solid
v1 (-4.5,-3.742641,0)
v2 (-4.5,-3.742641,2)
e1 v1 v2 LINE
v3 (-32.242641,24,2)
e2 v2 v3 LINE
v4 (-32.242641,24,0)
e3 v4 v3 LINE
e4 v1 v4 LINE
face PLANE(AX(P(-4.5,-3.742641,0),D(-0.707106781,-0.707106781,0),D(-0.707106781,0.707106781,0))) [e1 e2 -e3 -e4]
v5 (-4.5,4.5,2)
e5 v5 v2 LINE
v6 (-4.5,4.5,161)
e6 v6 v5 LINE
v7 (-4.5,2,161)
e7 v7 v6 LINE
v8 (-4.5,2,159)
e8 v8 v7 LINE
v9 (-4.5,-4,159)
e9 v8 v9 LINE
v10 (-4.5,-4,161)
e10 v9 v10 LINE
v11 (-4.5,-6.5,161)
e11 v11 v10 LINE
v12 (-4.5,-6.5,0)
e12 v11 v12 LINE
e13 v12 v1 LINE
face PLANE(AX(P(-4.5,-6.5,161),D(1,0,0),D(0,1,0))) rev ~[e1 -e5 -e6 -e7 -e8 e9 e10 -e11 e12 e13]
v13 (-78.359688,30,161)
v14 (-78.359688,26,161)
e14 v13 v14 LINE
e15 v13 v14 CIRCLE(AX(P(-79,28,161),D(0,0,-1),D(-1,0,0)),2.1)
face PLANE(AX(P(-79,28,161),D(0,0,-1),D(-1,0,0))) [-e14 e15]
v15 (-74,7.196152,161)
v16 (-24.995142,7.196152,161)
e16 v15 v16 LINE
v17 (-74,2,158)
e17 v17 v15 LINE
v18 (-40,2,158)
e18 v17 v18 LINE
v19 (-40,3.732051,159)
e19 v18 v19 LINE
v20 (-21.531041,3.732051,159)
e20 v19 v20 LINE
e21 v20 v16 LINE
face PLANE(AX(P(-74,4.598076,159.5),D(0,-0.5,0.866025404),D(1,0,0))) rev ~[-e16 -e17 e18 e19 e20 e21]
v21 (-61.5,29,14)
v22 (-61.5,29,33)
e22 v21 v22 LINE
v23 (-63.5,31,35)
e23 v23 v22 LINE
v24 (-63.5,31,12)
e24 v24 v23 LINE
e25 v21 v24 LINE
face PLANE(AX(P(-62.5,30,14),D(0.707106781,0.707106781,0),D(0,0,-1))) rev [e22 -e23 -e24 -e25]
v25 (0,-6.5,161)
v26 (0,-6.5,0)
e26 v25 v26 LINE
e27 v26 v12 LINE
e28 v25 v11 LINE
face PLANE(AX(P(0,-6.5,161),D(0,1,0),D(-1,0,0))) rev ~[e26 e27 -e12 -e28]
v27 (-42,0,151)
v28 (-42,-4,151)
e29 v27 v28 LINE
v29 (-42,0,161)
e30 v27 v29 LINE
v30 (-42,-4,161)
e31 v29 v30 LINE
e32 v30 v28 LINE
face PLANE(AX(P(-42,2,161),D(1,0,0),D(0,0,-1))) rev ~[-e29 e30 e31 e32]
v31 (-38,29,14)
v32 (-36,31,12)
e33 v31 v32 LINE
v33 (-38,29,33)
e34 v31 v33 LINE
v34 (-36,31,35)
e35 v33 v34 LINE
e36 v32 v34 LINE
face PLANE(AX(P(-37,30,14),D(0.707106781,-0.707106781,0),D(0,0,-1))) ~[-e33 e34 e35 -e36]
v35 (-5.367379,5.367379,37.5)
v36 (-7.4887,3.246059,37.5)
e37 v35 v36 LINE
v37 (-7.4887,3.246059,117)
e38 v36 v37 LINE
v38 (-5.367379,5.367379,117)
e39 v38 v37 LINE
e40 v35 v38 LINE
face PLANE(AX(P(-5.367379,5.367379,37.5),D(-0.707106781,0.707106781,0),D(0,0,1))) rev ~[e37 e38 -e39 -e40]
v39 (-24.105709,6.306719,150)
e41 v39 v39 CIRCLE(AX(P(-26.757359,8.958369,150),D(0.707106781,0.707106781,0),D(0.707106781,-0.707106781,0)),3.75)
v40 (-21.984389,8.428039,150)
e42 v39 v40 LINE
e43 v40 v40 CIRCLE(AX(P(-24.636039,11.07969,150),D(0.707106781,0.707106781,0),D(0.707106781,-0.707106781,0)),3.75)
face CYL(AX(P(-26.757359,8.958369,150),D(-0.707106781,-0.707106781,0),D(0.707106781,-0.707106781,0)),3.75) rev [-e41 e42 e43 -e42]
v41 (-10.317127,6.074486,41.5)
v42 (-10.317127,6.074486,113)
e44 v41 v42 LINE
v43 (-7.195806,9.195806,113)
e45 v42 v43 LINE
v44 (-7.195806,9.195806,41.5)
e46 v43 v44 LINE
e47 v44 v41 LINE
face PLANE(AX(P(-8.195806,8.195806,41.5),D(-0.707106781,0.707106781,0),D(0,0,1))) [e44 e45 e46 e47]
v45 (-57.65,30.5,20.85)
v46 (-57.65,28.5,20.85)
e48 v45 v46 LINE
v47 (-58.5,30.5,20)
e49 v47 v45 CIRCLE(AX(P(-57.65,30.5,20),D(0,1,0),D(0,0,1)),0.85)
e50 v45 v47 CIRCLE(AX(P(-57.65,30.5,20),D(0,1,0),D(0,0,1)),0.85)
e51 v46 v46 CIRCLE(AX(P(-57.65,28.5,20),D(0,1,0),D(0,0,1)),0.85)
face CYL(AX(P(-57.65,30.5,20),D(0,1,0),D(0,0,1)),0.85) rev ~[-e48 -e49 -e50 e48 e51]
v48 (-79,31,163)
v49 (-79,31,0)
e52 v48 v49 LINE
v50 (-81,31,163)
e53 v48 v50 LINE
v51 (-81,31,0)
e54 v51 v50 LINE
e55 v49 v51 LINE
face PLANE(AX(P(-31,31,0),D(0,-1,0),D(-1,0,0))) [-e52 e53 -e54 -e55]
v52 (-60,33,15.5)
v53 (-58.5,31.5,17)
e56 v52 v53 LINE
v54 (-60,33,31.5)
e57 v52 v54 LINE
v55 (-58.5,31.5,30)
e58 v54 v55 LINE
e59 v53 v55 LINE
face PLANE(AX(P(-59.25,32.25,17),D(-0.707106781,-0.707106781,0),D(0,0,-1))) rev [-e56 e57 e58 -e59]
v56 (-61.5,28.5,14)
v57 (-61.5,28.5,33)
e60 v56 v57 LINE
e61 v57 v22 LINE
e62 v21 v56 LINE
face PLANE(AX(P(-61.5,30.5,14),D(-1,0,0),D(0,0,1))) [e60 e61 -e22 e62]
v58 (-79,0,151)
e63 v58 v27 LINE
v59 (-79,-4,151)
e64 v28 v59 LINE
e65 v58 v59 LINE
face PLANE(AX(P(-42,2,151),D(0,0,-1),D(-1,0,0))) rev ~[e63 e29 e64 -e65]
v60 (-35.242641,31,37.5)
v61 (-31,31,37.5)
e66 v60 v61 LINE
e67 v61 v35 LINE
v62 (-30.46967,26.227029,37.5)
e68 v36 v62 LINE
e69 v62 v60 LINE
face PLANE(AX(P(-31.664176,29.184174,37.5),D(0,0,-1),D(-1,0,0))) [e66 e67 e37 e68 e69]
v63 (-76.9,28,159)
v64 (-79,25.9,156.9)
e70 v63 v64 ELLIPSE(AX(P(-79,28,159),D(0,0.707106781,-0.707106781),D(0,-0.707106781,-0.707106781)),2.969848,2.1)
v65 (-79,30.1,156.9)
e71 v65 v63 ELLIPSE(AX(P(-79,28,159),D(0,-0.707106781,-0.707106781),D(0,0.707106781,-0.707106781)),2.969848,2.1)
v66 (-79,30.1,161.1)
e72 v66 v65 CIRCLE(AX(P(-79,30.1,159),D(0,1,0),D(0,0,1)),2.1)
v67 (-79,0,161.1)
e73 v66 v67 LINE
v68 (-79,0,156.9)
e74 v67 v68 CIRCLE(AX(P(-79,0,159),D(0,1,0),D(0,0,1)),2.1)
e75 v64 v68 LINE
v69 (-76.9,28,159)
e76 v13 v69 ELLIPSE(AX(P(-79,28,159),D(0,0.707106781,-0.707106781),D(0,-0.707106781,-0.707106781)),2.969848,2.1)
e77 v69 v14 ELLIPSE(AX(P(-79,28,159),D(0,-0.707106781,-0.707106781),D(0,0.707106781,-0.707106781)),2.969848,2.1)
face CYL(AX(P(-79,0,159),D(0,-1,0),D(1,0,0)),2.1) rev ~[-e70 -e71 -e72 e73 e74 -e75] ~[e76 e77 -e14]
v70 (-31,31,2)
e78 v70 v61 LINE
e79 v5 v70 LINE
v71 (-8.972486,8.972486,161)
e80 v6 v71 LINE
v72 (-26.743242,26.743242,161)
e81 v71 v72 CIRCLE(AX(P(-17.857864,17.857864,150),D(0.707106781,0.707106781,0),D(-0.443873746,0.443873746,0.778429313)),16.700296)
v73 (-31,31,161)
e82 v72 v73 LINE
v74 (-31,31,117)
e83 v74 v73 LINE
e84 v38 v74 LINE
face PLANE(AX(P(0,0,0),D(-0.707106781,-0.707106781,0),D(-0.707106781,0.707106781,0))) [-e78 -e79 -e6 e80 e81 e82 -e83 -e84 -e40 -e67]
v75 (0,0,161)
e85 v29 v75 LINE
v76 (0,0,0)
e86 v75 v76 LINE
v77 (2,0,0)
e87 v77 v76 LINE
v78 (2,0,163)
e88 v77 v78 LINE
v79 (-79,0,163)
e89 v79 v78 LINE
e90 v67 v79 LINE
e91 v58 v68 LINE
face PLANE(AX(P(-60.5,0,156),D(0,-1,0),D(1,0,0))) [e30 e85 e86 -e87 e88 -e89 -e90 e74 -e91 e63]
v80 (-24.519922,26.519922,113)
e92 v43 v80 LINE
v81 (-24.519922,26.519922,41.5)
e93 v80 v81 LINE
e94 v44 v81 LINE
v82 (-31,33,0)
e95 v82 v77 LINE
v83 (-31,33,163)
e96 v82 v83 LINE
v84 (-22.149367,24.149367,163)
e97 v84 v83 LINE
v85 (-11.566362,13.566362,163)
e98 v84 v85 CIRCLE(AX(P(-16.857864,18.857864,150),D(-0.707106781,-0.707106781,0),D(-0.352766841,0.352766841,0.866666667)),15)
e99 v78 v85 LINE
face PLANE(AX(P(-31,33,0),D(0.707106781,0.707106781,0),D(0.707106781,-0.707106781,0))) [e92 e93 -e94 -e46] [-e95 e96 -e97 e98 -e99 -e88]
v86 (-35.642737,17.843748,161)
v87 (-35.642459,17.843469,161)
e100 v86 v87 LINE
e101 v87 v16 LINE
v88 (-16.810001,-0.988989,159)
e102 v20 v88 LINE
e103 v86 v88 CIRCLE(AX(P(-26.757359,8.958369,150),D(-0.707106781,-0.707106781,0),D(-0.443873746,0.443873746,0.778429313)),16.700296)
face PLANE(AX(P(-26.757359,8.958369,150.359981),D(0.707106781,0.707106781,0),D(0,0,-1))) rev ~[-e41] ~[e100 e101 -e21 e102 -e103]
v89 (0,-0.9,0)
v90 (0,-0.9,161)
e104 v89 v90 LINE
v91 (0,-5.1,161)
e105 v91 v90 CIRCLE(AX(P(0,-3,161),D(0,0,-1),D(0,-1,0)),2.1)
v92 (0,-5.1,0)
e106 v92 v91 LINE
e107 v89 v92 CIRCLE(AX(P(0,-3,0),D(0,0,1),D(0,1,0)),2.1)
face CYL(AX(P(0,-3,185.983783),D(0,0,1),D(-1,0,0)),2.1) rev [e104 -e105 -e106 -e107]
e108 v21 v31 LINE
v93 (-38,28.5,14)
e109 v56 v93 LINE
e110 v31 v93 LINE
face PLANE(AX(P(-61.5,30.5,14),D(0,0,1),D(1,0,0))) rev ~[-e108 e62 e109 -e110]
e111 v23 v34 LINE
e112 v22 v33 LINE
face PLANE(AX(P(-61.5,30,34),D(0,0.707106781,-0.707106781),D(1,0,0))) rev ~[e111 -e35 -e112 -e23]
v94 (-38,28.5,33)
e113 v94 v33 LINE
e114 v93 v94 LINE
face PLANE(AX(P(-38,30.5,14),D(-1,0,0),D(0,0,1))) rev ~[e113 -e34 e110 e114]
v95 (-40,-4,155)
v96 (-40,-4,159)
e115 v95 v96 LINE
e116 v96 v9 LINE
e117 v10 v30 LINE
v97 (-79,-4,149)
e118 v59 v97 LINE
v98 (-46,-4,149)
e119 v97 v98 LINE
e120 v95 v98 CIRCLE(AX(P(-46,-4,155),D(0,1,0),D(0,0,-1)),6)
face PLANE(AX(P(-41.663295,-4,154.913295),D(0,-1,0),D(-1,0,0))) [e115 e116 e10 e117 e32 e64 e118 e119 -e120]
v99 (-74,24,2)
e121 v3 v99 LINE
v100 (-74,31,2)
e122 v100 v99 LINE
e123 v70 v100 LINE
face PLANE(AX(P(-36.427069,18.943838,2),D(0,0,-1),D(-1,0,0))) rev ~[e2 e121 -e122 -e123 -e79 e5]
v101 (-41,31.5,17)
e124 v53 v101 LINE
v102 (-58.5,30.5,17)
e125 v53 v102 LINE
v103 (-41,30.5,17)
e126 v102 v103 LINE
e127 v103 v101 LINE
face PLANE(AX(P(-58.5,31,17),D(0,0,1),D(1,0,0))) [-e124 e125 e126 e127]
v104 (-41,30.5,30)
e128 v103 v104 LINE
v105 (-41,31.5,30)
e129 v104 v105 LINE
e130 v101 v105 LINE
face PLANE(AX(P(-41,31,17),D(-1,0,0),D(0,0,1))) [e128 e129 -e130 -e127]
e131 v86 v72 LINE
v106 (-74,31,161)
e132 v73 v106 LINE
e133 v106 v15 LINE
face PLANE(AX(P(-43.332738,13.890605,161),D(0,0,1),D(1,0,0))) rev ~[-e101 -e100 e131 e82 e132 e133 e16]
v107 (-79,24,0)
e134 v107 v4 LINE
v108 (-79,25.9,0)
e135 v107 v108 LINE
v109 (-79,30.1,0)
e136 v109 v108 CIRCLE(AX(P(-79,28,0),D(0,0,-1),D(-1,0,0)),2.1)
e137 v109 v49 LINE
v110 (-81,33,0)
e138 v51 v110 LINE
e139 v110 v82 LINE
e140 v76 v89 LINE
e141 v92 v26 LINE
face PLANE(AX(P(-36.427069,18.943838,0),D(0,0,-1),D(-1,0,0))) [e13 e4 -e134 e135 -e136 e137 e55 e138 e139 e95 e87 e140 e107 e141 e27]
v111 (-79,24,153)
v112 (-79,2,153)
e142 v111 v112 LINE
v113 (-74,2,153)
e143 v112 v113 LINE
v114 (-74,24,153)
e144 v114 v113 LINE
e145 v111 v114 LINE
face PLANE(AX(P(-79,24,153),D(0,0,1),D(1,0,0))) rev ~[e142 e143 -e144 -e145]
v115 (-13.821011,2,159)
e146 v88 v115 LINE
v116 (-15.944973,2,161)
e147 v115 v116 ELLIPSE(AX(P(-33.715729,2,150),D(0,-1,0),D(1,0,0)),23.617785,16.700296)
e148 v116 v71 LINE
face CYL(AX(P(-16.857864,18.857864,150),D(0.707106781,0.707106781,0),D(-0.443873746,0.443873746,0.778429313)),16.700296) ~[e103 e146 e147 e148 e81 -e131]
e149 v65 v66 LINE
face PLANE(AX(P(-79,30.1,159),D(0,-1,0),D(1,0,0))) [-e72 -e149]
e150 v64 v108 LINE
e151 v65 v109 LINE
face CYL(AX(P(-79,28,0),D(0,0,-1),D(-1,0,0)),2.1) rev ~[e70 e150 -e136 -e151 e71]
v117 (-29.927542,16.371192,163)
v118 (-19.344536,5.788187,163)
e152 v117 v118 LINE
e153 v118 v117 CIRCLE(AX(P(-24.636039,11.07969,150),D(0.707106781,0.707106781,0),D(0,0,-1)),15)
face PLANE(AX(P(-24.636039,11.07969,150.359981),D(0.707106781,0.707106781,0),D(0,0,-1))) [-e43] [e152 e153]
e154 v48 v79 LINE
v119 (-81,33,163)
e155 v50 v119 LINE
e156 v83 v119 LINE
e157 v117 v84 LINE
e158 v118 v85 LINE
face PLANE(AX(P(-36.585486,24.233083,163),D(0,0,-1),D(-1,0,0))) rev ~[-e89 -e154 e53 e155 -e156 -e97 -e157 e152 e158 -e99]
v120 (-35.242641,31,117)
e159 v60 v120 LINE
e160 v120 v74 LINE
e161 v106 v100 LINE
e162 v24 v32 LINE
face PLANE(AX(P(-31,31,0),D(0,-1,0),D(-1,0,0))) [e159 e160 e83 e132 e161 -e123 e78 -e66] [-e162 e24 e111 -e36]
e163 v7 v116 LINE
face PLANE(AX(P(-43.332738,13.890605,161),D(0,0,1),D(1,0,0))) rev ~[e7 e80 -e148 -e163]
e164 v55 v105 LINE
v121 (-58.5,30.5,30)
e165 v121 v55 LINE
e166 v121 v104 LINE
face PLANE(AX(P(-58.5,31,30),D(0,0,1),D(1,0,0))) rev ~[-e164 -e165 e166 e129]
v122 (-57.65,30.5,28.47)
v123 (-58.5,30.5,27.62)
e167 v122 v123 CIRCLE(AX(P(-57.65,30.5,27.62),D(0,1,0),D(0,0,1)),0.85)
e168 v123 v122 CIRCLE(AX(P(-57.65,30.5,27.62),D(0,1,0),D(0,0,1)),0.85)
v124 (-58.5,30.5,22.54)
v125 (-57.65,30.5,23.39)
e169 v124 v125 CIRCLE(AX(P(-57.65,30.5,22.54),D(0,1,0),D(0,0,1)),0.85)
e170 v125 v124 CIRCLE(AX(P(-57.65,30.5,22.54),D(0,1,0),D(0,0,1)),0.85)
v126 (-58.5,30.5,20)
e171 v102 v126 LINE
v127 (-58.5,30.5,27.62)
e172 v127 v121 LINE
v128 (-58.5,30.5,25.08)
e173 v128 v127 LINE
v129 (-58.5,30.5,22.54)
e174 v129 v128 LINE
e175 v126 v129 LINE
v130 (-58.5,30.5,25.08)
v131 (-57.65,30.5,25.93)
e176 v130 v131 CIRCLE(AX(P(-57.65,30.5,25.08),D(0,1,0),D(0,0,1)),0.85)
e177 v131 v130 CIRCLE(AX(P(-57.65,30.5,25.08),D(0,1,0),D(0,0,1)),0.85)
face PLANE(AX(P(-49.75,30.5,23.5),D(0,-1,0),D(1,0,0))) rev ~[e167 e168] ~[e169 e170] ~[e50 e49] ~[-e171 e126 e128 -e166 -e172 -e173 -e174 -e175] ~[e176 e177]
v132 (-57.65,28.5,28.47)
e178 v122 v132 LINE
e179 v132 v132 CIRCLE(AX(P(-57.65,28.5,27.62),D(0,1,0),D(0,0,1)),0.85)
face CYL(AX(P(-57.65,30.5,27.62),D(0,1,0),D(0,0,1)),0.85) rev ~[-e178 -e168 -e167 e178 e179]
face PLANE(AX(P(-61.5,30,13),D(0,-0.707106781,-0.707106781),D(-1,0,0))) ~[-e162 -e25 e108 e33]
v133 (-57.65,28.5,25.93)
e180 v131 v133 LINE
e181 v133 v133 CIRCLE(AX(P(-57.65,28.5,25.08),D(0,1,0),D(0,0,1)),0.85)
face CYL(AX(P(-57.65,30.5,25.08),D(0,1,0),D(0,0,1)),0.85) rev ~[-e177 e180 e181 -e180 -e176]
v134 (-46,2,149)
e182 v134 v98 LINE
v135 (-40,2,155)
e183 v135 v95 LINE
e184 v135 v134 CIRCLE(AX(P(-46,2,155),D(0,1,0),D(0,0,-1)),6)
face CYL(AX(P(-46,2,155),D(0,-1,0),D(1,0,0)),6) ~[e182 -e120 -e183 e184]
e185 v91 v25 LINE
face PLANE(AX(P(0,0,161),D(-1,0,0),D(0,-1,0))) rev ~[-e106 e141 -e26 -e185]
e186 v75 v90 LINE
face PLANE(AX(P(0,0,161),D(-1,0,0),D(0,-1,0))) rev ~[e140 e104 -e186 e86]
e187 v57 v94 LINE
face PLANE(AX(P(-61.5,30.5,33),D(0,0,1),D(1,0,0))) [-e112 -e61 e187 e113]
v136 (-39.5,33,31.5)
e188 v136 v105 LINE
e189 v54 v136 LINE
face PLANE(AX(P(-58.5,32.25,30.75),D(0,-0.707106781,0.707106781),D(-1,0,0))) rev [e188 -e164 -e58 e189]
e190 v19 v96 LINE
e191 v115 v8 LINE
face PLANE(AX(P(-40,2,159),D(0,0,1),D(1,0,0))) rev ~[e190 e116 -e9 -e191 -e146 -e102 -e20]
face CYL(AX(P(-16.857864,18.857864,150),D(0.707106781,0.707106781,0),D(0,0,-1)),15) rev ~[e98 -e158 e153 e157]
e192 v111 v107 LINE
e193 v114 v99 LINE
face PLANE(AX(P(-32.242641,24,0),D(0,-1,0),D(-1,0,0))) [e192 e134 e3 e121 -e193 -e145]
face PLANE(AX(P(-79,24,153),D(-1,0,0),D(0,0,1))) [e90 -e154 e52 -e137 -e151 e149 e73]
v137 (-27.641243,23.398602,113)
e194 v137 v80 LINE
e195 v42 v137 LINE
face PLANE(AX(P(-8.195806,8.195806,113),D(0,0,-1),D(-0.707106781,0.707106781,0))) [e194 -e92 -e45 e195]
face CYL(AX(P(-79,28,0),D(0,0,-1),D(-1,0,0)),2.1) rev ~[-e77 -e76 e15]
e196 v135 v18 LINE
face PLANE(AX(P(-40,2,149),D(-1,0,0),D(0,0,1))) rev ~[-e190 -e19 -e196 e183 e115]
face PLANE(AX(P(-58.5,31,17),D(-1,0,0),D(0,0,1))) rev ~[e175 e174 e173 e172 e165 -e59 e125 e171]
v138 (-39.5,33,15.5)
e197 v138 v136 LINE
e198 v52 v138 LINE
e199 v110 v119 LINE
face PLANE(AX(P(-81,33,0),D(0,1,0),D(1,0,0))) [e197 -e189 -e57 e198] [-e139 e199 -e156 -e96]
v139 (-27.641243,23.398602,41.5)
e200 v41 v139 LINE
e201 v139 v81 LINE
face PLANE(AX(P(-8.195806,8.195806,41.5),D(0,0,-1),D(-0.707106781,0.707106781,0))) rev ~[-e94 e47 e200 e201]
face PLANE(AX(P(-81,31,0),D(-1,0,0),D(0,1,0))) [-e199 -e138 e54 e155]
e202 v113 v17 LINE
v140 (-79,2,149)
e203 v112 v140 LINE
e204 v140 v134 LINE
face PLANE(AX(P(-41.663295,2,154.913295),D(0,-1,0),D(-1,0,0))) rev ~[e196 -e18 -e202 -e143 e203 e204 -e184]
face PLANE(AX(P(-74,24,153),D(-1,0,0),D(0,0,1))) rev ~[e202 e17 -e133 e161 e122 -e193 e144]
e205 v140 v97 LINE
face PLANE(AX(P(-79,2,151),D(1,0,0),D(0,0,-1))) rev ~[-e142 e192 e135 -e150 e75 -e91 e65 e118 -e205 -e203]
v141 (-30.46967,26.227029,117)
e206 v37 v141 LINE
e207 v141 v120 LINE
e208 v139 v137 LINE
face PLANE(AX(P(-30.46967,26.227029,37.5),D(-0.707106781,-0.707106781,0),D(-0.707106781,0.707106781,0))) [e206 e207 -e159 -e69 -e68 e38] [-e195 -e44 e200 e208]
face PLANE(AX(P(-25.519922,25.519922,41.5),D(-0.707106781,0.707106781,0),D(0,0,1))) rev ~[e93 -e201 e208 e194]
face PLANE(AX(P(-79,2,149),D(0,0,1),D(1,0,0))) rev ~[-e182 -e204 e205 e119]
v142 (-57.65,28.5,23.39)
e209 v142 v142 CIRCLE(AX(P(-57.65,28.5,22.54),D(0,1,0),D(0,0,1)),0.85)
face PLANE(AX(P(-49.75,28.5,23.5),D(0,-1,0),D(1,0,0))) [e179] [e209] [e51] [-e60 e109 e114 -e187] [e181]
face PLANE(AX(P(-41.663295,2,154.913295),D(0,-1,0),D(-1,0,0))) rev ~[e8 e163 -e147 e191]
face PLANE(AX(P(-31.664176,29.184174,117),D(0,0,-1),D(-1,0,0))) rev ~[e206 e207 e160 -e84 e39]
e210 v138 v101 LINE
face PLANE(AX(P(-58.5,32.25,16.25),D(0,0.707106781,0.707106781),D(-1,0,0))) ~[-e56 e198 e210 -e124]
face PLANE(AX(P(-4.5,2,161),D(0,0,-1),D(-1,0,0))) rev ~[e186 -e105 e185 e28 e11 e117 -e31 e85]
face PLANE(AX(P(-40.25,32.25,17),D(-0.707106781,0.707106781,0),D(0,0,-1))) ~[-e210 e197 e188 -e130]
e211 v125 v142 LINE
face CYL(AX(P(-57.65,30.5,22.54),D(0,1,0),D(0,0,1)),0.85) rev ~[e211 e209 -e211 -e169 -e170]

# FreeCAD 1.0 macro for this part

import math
import FreeCAD as App
import Part
import Sketcher
Q = App.Units.Quantity


def edges_at(feature, points):
    """Names of the edges that pass closest to the given points."""
    edges = feature.Shape.Edges
    near = lambda p: min(range(len(edges)), key=lambda i: edges[i].distToShape(Part.Vertex(*p))[0])
    return sorted({f"Edge{near(p) + 1}" for p in points})


def add_polygon(sketch, points):
    """Adds a closed chain of lines whose ends are joined by coincident constraints."""
    first, n = sketch.GeometryCount, len(points)
    for a, b in zip(points, points[1:] + points[:1]):
        sketch.addGeometry(Part.LineSegment(App.Vector(*a, 0), App.Vector(*b, 0)), False)
    for i in range(n):
        sketch.addConstraint(Sketcher.Constraint("Coincident", first + i, 2, first + (i + 1) % n, 1))

doc = App.newDocument("Part")
params = doc.addObject("Spreadsheet::Sheet", "Params")
for row, (alias, value) in enumerate([
    ("sketch1_width", "2 mm"),
    ("sketch1_width2", "50 mm"),
    ("pad1_length", "163 mm"),
    ("sketch2_width", "48 mm"),
    ("sketch2_width2", "81 mm"),
    ("sketch2_height", "33 mm"),
    ("pad2_length", "2 mm"),
    ("sketch3_width", "48 mm"),
    ("sketch3_height", "3 mm"),
    ("pad3_length", "2 mm"),
    ("sketch4_width", "37 mm"),
    ("sketch4_height", "10 mm"),
    ("pad4_length", "2 mm"),
    ("sketch5_width", "71.5 mm"),
    ("sketch5_height", "24.5 mm"),
    ("sketch6_width", "79.5 mm"),
    ("sketch6_width2", "71.5 mm"),
    ("sketch6_height", "32.5 mm"),
    ("sketch6_height2", "24.5 mm"),
    ("pad5_length", "3 mm"),
    ("sketch7_length", "3 mm"),
    ("sketch7_length2", "6.75 mm"),
    ("pad6_length", "79.5 mm"),
    ("sketch8_diameter", "30 mm"),
    ("pocket2_length", "14 mm"),
    ("sketch9_radius", "15 mm"),
    ("sketch9_height", "3 mm"),
    ("pad7_length", "14 mm"),
    ("sketch10_diameter", "7.5 mm"),
    ("sketch10_radius", "16.7 mm"),
    ("pad8_length", "3 mm"),
    ("sketch11_height", "13 mm"),
    ("sketch11_width", "17.5 mm"),
    ("sketch12_height", "19 mm"),
    ("sketch12_height2", "13 mm"),
    ("sketch12_width", "23.5 mm"),
    ("sketch12_width2", "17.5 mm"),
    ("pad9_length", "0.5 mm"),
    ("sketch13_height", "19 mm"),
    ("sketch13_width", "23.5 mm"),
    ("pad10_length", "2 mm"),
    ("chamfer_size", "2 mm"),
    ("chamfer2_size", "1.5 mm"),
    ("sketch14_diameter", "1.7 mm"),
    ("pocket4_length", "10 mm"),
    ("sketch15_width", "5 mm"),
    ("sketch15_height", "7 mm"),
    ("pad11_length", "161 mm"),
    ("sketch16_diameter", "4.2 mm"),
    ("pocket5_length", "161 mm"),
    ("sketch17_width", "5 mm"),
    ("sketch17_height", "8 mm"),
    ("pad12_length", "22 mm"),
    ("sketch18_diameter", "4.2 mm"),
    ("pocket6_length", "30.1 mm"),
    ("sketch19_height", "11 mm"),
    ("sketch19_width", "4.5 mm"),
    ("pad13_length", "161 mm"),
    ("sketch20_diameter", "4.2 mm"),
    ("sketch21_height", "4 mm"),
    ("pad14_length", "2 mm"),
    ("sketch22_width", "37 mm"),
    ("sketch22_width2", "39 mm"),
    ("sketch22_height", "10 mm"),
    ("sketch22_height2", "2 mm"),
    ("sketch22_width3", "37.5 mm"),
    ("pad15_length", "6 mm"),
    ("fillet_radius", "6 mm"),
    ("chamfer3_size", "3 mm"),
    ("chamfer3_size2", "5.196152 mm"),
], start=1):
    params.set(f"A{row}", alias)
    params.set(f"B{row}", "=" + value)
    params.setAlias(f"B{row}", alias)

body = doc.addObject("PartDesign::Body", "Body")

sketch1 = body.newObject("Sketcher::SketchObject", "Sketch")
sketch1.AttachmentSupport = (doc.getObject("XY_Plane"), [""])
sketch1.MapMode = "FlatFace"
add_polygon(sketch1, [(-31, 31), (0, 0), (2, 0), (-31, 33), (-81, 33), (-81, 31)])
sketch1.addConstraint([
    Sketcher.Constraint("Horizontal", 1),
    Sketcher.Constraint("Horizontal", 3),
    Sketcher.Constraint("Vertical", 4),
    Sketcher.Constraint("Horizontal", 5),
    Sketcher.Constraint("Coincident", 0, 2, -1, 1),
    Sketcher.Constraint("Parallel", 0, 2),
    Sketcher.Constraint("Vertical", 2, 2, 5, 2),
    Sketcher.Constraint("Equal", 1, 4),
    Sketcher.Constraint("DistanceX", 1, 1, 1, 2, Q("2 mm")),
    Sketcher.Constraint("DistanceX", 3, 2, 3, 1, Q("50 mm")),
    Sketcher.Constraint("DistanceX", 2, 2, -1, 1, Q("31 mm")),
])
sketch1.setExpression("Constraints[14]", "Params.sketch1_width")
sketch1.setExpression("Constraints[15]", "Params.sketch1_width2")
pad1 = body.newObject("PartDesign::Pad", "Pad")
pad1.Profile = sketch1
pad1.setExpression("Length", "Params.pad1_length")

sketch2 = body.newObject("Sketcher::SketchObject", "Sketch001")
sketch2.AttachmentSupport = (doc.getObject("XY_Plane"), [""])
sketch2.MapMode = "FlatFace"
sketch2.AttachmentOffset = App.Placement(App.Vector(0, 0, 163), App.Rotation())
add_polygon(sketch2, [(2, 0), (-31, 33), (-79, 33), (-79, 0)])
sketch2.addConstraint([
    Sketcher.Constraint("Horizontal", 1),
    Sketcher.Constraint("Vertical", 2),
    Sketcher.Constraint("Horizontal", 3),
    Sketcher.Constraint("PointOnObject", 2, 2, -1),
    Sketcher.Constraint("DistanceX", 1, 2, 1, 1, Q("48 mm")),
    Sketcher.Constraint("DistanceX", 3, 1, 3, 2, Q("81 mm")),
    Sketcher.Constraint("DistanceY", 2, 2, 2, 1, Q("33 mm")),
    Sketcher.Constraint("DistanceX", 0, 2, -1, 1, Q("31 mm")),
])
sketch2.setExpression("Constraints[8]", "Params.sketch2_width")
sketch2.setExpression("Constraints[9]", "Params.sketch2_width2")
sketch2.setExpression("Constraints[10]", "Params.sketch2_height")
pad2 = body.newObject("PartDesign::Pad", "Pad001")
pad2.Profile = sketch2
pad2.setExpression("Length", "Params.pad2_length")
pad2.Reversed = True

sketch3 = body.newObject("Sketcher::SketchObject", "Sketch002")
sketch3.AttachmentSupport = (doc.getObject("XY_Plane"), [""])
sketch3.MapMode = "FlatFace"
add_polygon(sketch3, [(-31, 31), (0, 0), (-4.242641, 0), (-32.242641, 28), (-79, 28), (-79, 31)])
sketch3.addConstraint([
    Sketcher.Constraint("Horizontal", 1),
    Sketcher.Constraint("Horizontal", 3),
    Sketcher.Constraint("Vertical", 4),
    Sketcher.Constraint("Horizontal", 5),
    Sketcher.Constraint("Coincident", 0, 2, -1, 1),
    Sketcher.Constraint("Parallel", 0, 2),
    Sketcher.Constraint("DistanceX", 5, 1, 5, 2, Q("48 mm")),
    Sketcher.Constraint("DistanceY", 4, 1, 4, 2, Q("3 mm")),
    Sketcher.Constraint("Angle", 0, Q("-45 deg")),
    Sketcher.Constraint("DistanceY", -1, 1, 2, 2, Q("28 mm")),
    Sketcher.Constraint("DistanceX", 1, 2, 1, 1, Q("4.242641 mm")),
])
sketch3.setExpression("Constraints[12]", "Params.sketch3_width")
sketch3.setExpression("Constraints[13]", "Params.sketch3_height")
pad3 = body.newObject("PartDesign::Pad", "Pad002")
pad3.Profile = sketch3
pad3.setExpression("Length", "Params.pad3_length")

sketch4 = body.newObject("Sketcher::SketchObject", "Sketch003")
sketch4.AttachmentSupport = (doc.getObject("XZ_Plane"), [""])
sketch4.MapMode = "FlatFace"
add_polygon(sketch4, [(-79, 161), (-79, 151), (-42, 151), (-42, 161)])
sketch4.addConstraint([
    Sketcher.Constraint("Vertical", 0),
    Sketcher.Constraint("Horizontal", 1),
    Sketcher.Constraint("Vertical", 2),
    Sketcher.Constraint("Horizontal", 3),
    Sketcher.Constraint("DistanceX", 1, 1, 1, 2, Q("37 mm")),
    Sketcher.Constraint("DistanceY", 0, 2, 0, 1, Q("10 mm")),
    Sketcher.Constraint("DistanceX", 0, 2, -1, 1, Q("79 mm")),
    Sketcher.Constraint("DistanceY", -1, 1, 0, 2, Q("151 mm")),
])
sketch4.setExpression("Constraints[8]", "Params.sketch4_width")
sketch4.setExpression("Constraints[9]", "Params.sketch4_height")
pad4 = body.newObject("PartDesign::Pad", "Pad003")
pad4.Profile = sketch4
pad4.setExpression("Length", "Params.pad4_length")
pad4.Reversed = True

sketch5 = body.newObject("Sketcher::SketchObject", "Sketch004")
sketch5.Placement = App.Placement(App.Vector(1, 1, 0), App.Rotation(App.Vector(0, 0, -1), App.Vector(-0.707106781, 0.707106781, 0), App.Vector(0.707106781, 0.707106781, 0), "ZXY"))
add_polygon(sketch5, [(-113, 36.09062), (-113, 11.59062), (-41.5, 11.59062), (-41.5, 36.09062)])
sketch5.addConstraint([
    Sketcher.Constraint("Vertical", 0),
    Sketcher.Constraint("Horizontal", 1),
    Sketcher.Constraint("Vertical", 2),
    Sketcher.Constraint("Horizontal", 3),
    Sketcher.Constraint("DistanceX", 1, 1, 1, 2, Q("71.5 mm")),
    Sketcher.Constraint("DistanceY", 0, 2, 0, 1, Q("24.5 mm")),
    Sketcher.Constraint("DistanceX", 0, 2, -1, 1, Q("113 mm")),
    Sketcher.Constraint("DistanceY", -1, 1, 0, 2, Q("11.59062 mm")),
])
sketch5.setExpression("Constraints[8]", "Params.sketch5_width")
sketch5.setExpression("Constraints[9]", "Params.sketch5_height")
pocket1 = body.newObject("PartDesign::Pocket", "Pocket")
pocket1.Profile = sketch5
pocket1.Type = "ThroughAll"

sketch6 = body.newObject("Sketcher::SketchObject", "Sketch005")
sketch6.Placement = App.Placement(App.Vector(0, 0, 0), App.Rotation(App.Vector(0, 0, 1), App.Vector(-0.707106781, 0.707106781, 0), App.Vector(-0.707106781, -0.707106781, 0), "ZXY"))
add_polygon(sketch6, [(37.5, 40.09062), (37.5, 7.59062), (117, 7.59062), (117, 40.09062)])
add_polygon(sketch6, [(113, 11.59062), (41.5, 11.59062), (41.5, 36.09062), (113, 36.09062)])
sketch6.addConstraint([
    Sketcher.Constraint("Vertical", 0),
    Sketcher.Constraint("Horizontal", 1),
    Sketcher.Constraint("Vertical", 2),
    Sketcher.Constraint("Horizontal", 3),
    Sketcher.Constraint("Horizontal", 4),
    Sketcher.Constraint("Vertical", 5),
    Sketcher.Constraint("Horizontal", 6),
    Sketcher.Constraint("Vertical", 7),
    Sketcher.Constraint("DistanceX", 1, 1, 1, 2, Q("79.5 mm")),
    Sketcher.Constraint("DistanceX", 4, 2, 4, 1, Q("71.5 mm")),
    Sketcher.Constraint("DistanceY", 0, 2, 0, 1, Q("32.5 mm")),
    Sketcher.Constraint("DistanceY", 5, 1, 5, 2, Q("24.5 mm")),
    Sketcher.Constraint("DistanceX", -1, 1, 1, 2, Q("117 mm")),
    Sketcher.Constraint("DistanceX", -1, 1, 6, 2, Q("113 mm")),
    Sketcher.Constraint("DistanceY", 0, 2, 4, 2, Q("4 mm")),
    Sketcher.Constraint("DistanceY", -1, 1, 0, 2, Q("7.59062 mm")),
])
sketch6.setExpression("Constraints[16]", "Params.sketch6_width")
sketch6.setExpression("Constraints[17]", "Params.sketch6_width2")
sketch6.setExpression("Constraints[18]", "Params.sketch6_height")
sketch6.setExpression("Constraints[19]", "Params.sketch6_height2")
pad5 = body.newObject("PartDesign::Pad", "Pad004")
pad5.Profile = sketch6
pad5.setExpression("Length", "Params.pad5_length")

sketch7 = body.newObject("Sketcher::SketchObject", "Sketch006")
sketch7.AttachmentSupport = (doc.getObject("XY_Plane"), [""])
sketch7.MapMode = "FlatFace"
sketch7.AttachmentOffset = App.Placement(App.Vector(0, 0, 37.5), App.Rotation())
add_polygon(sketch7, [(-28.34835, 28.34835), (-30.46967, 26.227029), (-35.242641, 31), (-31, 31)])
sketch7.addConstraint([
    Sketcher.Constraint("Horizontal", 2),
    Sketcher.Constraint("Perpendicular", 0, 1),
    Sketcher.Constraint("Parallel", 1, 3),
    Sketcher.Constraint("Angle", 0, Q("-135 deg")),
    Sketcher.Constraint("Distance", 0, Q("3 mm")),
    Sketcher.Constraint("DistanceY", -1, 1, 1, 2, Q("31 mm")),
    Sketcher.Constraint("DistanceX", 2, 2, -1, 1, Q("31 mm")),
    Sketcher.Constraint("Distance", 1, Q("6.75 mm")),
])
sketch7.setExpression("Constraints[8]", "Params.sketch7_length")
sketch7.setExpression("Constraints[11]", "Params.sketch7_length2")
pad6 = body.newObject("PartDesign::Pad", "Pad005")
pad6.Profile = sketch7
pad6.setExpression("Length", "Params.pad6_length")

sketch8 = body.newObject("Sketcher::SketchObject", "Sketch007")
sketch8.Placement = App.Placement(App.Vector(1, 1, 0), App.Rotation(App.Vector(0, 0, -1), App.Vector(-0.707106781, 0.707106781, 0), App.Vector(0.707106781, 0.707106781, 0), "ZXY"))
sketch8.addGeometry(Part.Circle(App.Vector(-150, 25.254834, 0), App.Vector(0, 0, 1), 15), False)
sketch8.addConstraint([
    Sketcher.Constraint("Diameter", 0, Q("30 mm")),
    Sketcher.Constraint("DistanceX", 0, 3, -1, 1, Q("150 mm")),
    Sketcher.Constraint("DistanceY", -1, 1, 0, 3, Q("25.254834 mm")),
])
sketch8.setExpression("Constraints[0]", "Params.sketch8_diameter")
pocket2 = body.newObject("PartDesign::Pocket", "Pocket001")
pocket2.Profile = sketch8
pocket2.setExpression("Length", "Params.pocket2_length")

sketch9 = body.newObject("Sketcher::SketchObject", "Sketch008")
sketch9.Placement = App.Placement(App.Vector(1, 1, 0), App.Rotation(App.Vector(0, 0, -1), App.Vector(-0.707106781, 0.707106781, 0), App.Vector(0.707106781, 0.707106781, 0), "ZXY"))
sketch9.addGeometry([
    Part.LineSegment(App.Vector(-163, 35.738149, 0), App.Vector(-163, 32.738149, 0)),
    Part.ArcOfCircle(Part.Circle(App.Vector(-150, 25.254834, 0), App.Vector(0, 0, 1), 15), math.radians(-150.073565), math.radians(150.073565)),
    Part.LineSegment(App.Vector(-163, 17.771519, 0), App.Vector(-163, 14.771519, 0)),
    Part.ArcOfCircle(Part.Circle(App.Vector(-150, 25.254834, 0), App.Vector(0, 0, 1), 16.700296), math.radians(-141.116989), math.radians(141.116989)),
], False)
sketch9.addConstraint([
    Sketcher.Constraint("Coincident", 0, 2, 1, 2),
    Sketcher.Constraint("Coincident", 1, 1, 2, 1),
    Sketcher.Constraint("Coincident", 2, 2, 3, 1),
    Sketcher.Constraint("Coincident", 3, 2, 0, 1),
    Sketcher.Constraint("Vertical", 0),
    Sketcher.Constraint("Vertical", 2),
    Sketcher.Constraint("Coincident", 3, 3, 1, 3),
    Sketcher.Constraint("Vertical", 0, 2, 1, 1),
    Sketcher.Constraint("Radius", 1, Q("15 mm")),
    Sketcher.Constraint("DistanceY", 0, 2, 0, 1, Q("3 mm")),
    Sketcher.Constraint("DistanceX", 1, 3, -1, 1, Q("150 mm")),
    Sketcher.Constraint("DistanceX", 0, 2, -1, 1, Q("163 mm")),
    Sketcher.Constraint("DistanceY", -1, 1, 0, 2, Q("32.738149 mm")),
])
sketch9.setExpression("Constraints[8]", "Params.sketch9_radius")
sketch9.setExpression("Constraints[9]", "Params.sketch9_height")
pad7 = body.newObject("PartDesign::Pad", "Pad006")
pad7.Profile = sketch9
pad7.setExpression("Length", "Params.pad7_length")
pad7.Reversed = True

sketch10 = body.newObject("Sketcher::SketchObject", "Sketch009")
sketch10.Placement = App.Placement(App.Vector(-8.899495, -8.899495, 0), App.Rotation(App.Vector(0, 0, -1), App.Vector(-0.707106781, 0.707106781, 0), App.Vector(0.707106781, 0.707106781, 0), "ZXY"))
sketch10.addGeometry([
    Part.LineSegment(App.Vector(-163, 35.737677, 0), App.Vector(-163, 14.771991, 0)),
    Part.ArcOfCircle(Part.Circle(App.Vector(-150, 25.254834, 0), App.Vector(0, 0, 1), 16.7), math.radians(-141.118249), math.radians(141.118249)),
    Part.Circle(App.Vector(-150, 25.254834, 0), App.Vector(0, 0, 1), 3.75),
], False)
sketch10.addConstraint([
    Sketcher.Constraint("Coincident", 0, 1, 1, 2),
    Sketcher.Constraint("Coincident", 1, 1, 0, 2),
    Sketcher.Constraint("Vertical", 0),
    Sketcher.Constraint("Coincident", 2, 3, 1, 3),
    Sketcher.Constraint("Diameter", 2, Q("7.5 mm")),
    Sketcher.Constraint("Radius", 1, Q("16.7 mm")),
    Sketcher.Constraint("DistanceX", 1, 3, -1, 1, Q("150 mm")),
    Sketcher.Constraint("DistanceX", 0, 1, -1, 1, Q("163 mm")),
    Sketcher.Constraint("DistanceY", -1, 1, 1, 1, Q("14.771991 mm")),
])
sketch10.setExpression("Constraints[4]", "Params.sketch10_diameter")
sketch10.setExpression("Constraints[5]", "Params.sketch10_radius")
pad8 = body.newObject("PartDesign::Pad", "Pad007")
pad8.Profile = sketch10
pad8.setExpression("Length", "Params.pad8_length")

sketch11 = body.newObject("Sketcher::SketchObject", "Sketch010")
sketch11.AttachmentSupport = (doc.getObject("XZ_Plane"), [""])
sketch11.MapMode = "FlatFace"
sketch11.AttachmentOffset = App.Placement(App.Vector(0, 0, -31), App.Rotation())
add_polygon(sketch11, [(-58.5, 30), (-58.5, 17), (-41, 17), (-41, 30)])
sketch11.addConstraint([
    Sketcher.Constraint("Vertical", 0),
    Sketcher.Constraint("Horizontal", 1),
    Sketcher.Constraint("Vertical", 2),
    Sketcher.Constraint("Horizontal", 3),
    Sketcher.Constraint("DistanceY", 0, 2, 0, 1, Q("13 mm")),
    Sketcher.Constraint("DistanceX", 1, 1, 1, 2, Q("17.5 mm")),
    Sketcher.Constraint("DistanceY", -1, 1, 0, 2, Q("17 mm")),
    Sketcher.Constraint("DistanceX", 1, 2, -1, 1, Q("41 mm")),
])
sketch11.setExpression("Constraints[8]", "Params.sketch11_height")
sketch11.setExpression("Constraints[9]", "Params.sketch11_width")
pocket3 = body.newObject("PartDesign::Pocket", "Pocket002")
pocket3.Profile = sketch11
pocket3.Type = "ThroughAll"
pocket3.Midplane = True

sketch12 = body.newObject("Sketcher::SketchObject", "Sketch011")
sketch12.AttachmentSupport = (doc.getObject("XZ_Plane"), [""])
sketch12.MapMode = "FlatFace"
sketch12.AttachmentOffset = App.Placement(App.Vector(0, 0, -31), App.Rotation())
add_polygon(sketch12, [(-61.5, 33), (-61.5, 14), (-38, 14), (-38, 33)])
add_polygon(sketch12, [(-41, 17), (-58.5, 17), (-58.5, 30), (-41, 30)])
sketch12.addConstraint([
    Sketcher.Constraint("Vertical", 0),
    Sketcher.Constraint("Horizontal", 1),
    Sketcher.Constraint("Vertical", 2),
    Sketcher.Constraint("Horizontal", 3),
    Sketcher.Constraint("Horizontal", 4),
    Sketcher.Constraint("Vertical", 5),
    Sketcher.Constraint("Horizontal", 6),
    Sketcher.Constraint("Vertical", 7),
    Sketcher.Constraint("DistanceY", 0, 2, 0, 1, Q("19 mm")),
    Sketcher.Constraint("DistanceY", 5, 1, 5, 2, Q("13 mm")),
    Sketcher.Constraint("DistanceX", 1, 1, 1, 2, Q("23.5 mm")),
    Sketcher.Constraint("DistanceX", 4, 2, 4, 1, Q("17.5 mm")),
    Sketcher.Constraint("DistanceY", -1, 1, 0, 2, Q("14 mm")),
    Sketcher.Constraint("DistanceX", 1, 2, -1, 1, Q("38 mm")),
    Sketcher.Constraint("DistanceY", -1, 1, 4, 2, Q("17 mm")),
    Sketcher.Constraint("DistanceX", 6, 2, -1, 1, Q("41 mm")),
])
sketch12.setExpression("Constraints[16]", "Params.sketch12_height")
sketch12.setExpression("Constraints[17]", "Params.sketch12_height2")
sketch12.setExpression("Constraints[18]", "Params.sketch12_width")
sketch12.setExpression("Constraints[19]", "Params.sketch12_width2")
pad9 = body.newObject("PartDesign::Pad", "Pad008")
pad9.Profile = sketch12
pad9.setExpression("Length", "Params.pad9_length")

sketch13 = body.newObject("Sketcher::SketchObject", "Sketch012")
sketch13.AttachmentSupport = (doc.getObject("XZ_Plane"), [""])
sketch13.MapMode = "FlatFace"
sketch13.AttachmentOffset = App.Placement(App.Vector(0, 0, -30.5), App.Rotation())
add_polygon(sketch13, [(-61.5, 33), (-61.5, 14), (-38, 14), (-38, 33)])
sketch13.addConstraint([
    Sketcher.Constraint("Vertical", 0),
    Sketcher.Constraint("Horizontal", 1),
    Sketcher.Constraint("Vertical", 2),
    Sketcher.Constraint("Horizontal", 3),
    Sketcher.Constraint("DistanceY", 0, 2, 0, 1, Q("19 mm")),
    Sketcher.Constraint("DistanceX", 1, 1, 1, 2, Q("23.5 mm")),
    Sketcher.Constraint("DistanceY", -1, 1, 0, 2, Q("14 mm")),
    Sketcher.Constraint("DistanceX", 1, 2, -1, 1, Q("38 mm")),
])
sketch13.setExpression("Constraints[8]", "Params.sketch13_height")
sketch13.setExpression("Constraints[9]", "Params.sketch13_width")
pad10 = body.newObject("PartDesign::Pad", "Pad009")
pad10.Profile = sketch13
pad10.setExpression("Length", "Params.pad10_length")
doc.recompute()

chamfer = body.newObject("PartDesign::Chamfer", "Chamfer")
chamfer.Base = (pad10, edges_at(pad10, [
    (-38, 31, 23.5),
    (-49.75, 31, 33),
    (-61.5, 31, 23.5),
    (-49.75, 31, 14),
]))
chamfer.setExpression("Size", "Params.chamfer_size")
doc.recompute()

chamfer2 = body.newObject("PartDesign::Chamfer", "Chamfer001")
chamfer2.Base = (chamfer, edges_at(chamfer, [
    (-41, 33, 23.5),
    (-49.75, 33, 17),
    (-58.5, 33, 23.5),
    (-49.75, 33, 30),
]))
chamfer2.setExpression("Size", "Params.chamfer2_size")

sketch14 = body.newObject("Sketcher::SketchObject", "Sketch013")
sketch14.AttachmentSupport = (doc.getObject("XZ_Plane"), [""])
sketch14.MapMode = "FlatFace"
sketch14.AttachmentOffset = App.Placement(App.Vector(0, 0, -30.5), App.Rotation())
sketch14.addGeometry([
    Part.Circle(App.Vector(-57.65, 20, 0), App.Vector(0, 0, 1), 0.85),
    Part.Circle(App.Vector(-57.65, 22.54, 0), App.Vector(0, 0, 1), 0.85),
    Part.Circle(App.Vector(-57.65, 25.08, 0), App.Vector(0, 0, 1), 0.85),
    Part.Circle(App.Vector(-57.65, 27.62, 0), App.Vector(0, 0, 1), 0.85),
], False)
sketch14.addConstraint([
    Sketcher.Constraint("Equal", 0, 1),
    Sketcher.Constraint("Equal", 1, 2),
    Sketcher.Constraint("Equal", 2, 3),
    Sketcher.Constraint("Vertical", 0, 3, 1, 3),
    Sketcher.Constraint("Vertical", 1, 3, 2, 3),
    Sketcher.Constraint("Vertical", 2, 3, 3, 3),
    Sketcher.Constraint("Diameter", 0, Q("1.7 mm")),
    Sketcher.Constraint("DistanceY", -1, 1, 0, 3, Q("20 mm")),
    Sketcher.Constraint("DistanceX", 0, 3, -1, 1, Q("57.65 mm")),
    Sketcher.Constraint("DistanceY", -1, 1, 1, 3, Q("22.54 mm")),
    Sketcher.Constraint("DistanceY", -1, 1, 2, 3, Q("25.08 mm")),
    Sketcher.Constraint("DistanceY", -1, 1, 3, 3, Q("27.62 mm")),
])
sketch14.setExpression("Constraints[6]", "Params.sketch14_diameter")
pocket4 = body.newObject("PartDesign::Pocket", "Pocket003")
pocket4.Profile = sketch14
pocket4.setExpression("Length", "Params.pocket4_length")
pocket4.Reversed = True

sketch15 = body.newObject("Sketcher::SketchObject", "Sketch014")
sketch15.AttachmentSupport = (doc.getObject("XY_Plane"), [""])
sketch15.MapMode = "FlatFace"
sketch15.AttachmentOffset = App.Placement(App.Vector(0, 0, 161), App.Rotation())
add_polygon(sketch15, [(-74, 31), (-74, 24), (-79, 24), (-79, 31)])
sketch15.addConstraint([
    Sketcher.Constraint("Vertical", 0),
    Sketcher.Constraint("Horizontal", 1),
    Sketcher.Constraint("Vertical", 2),
    Sketcher.Constraint("Horizontal", 3),
    Sketcher.Constraint("DistanceX", 1, 2, 1, 1, Q("5 mm")),
    Sketcher.Constraint("DistanceY", 0, 2, 0, 1, Q("7 mm")),
    Sketcher.Constraint("DistanceX", 0, 2, -1, 1, Q("74 mm")),
    Sketcher.Constraint("DistanceY", -1, 1, 0, 2, Q("24 mm")),
])
sketch15.setExpression("Constraints[8]", "Params.sketch15_width")
sketch15.setExpression("Constraints[9]", "Params.sketch15_height")
pad11 = body.newObject("PartDesign::Pad", "Pad010")
pad11.Profile = sketch15
pad11.setExpression("Length", "Params.pad11_length")
pad11.Reversed = True

sketch16 = body.newObject("Sketcher::SketchObject", "Sketch015")
sketch16.AttachmentSupport = (doc.getObject("XY_Plane"), [""])
sketch16.MapMode = "FlatFace"
sketch16.addGeometry(Part.Circle(App.Vector(-79, 28, 0), App.Vector(0, 0, 1), 2.1), False)
sketch16.addConstraint([
    Sketcher.Constraint("Diameter", 0, Q("4.2 mm")),
    Sketcher.Constraint("DistanceX", 0, 3, -1, 1, Q("79 mm")),
    Sketcher.Constraint("DistanceY", -1, 1, 0, 3, Q("28 mm")),
])
sketch16.setExpression("Constraints[0]", "Params.sketch16_diameter")
pocket5 = body.newObject("PartDesign::Pocket", "Pocket004")
pocket5.Profile = sketch16
pocket5.setExpression("Length", "Params.pocket5_length")
pocket5.Reversed = True

sketch17 = body.newObject("Sketcher::SketchObject", "Sketch016")
sketch17.AttachmentSupport = (doc.getObject("XZ_Plane"), [""])
sketch17.MapMode = "FlatFace"
sketch17.AttachmentOffset = App.Placement(App.Vector(0, 0, -24), App.Rotation())
add_polygon(sketch17, [(-79, 161), (-79, 153), (-74, 153), (-74, 161)])
sketch17.addConstraint([
    Sketcher.Constraint("Vertical", 0),
    Sketcher.Constraint("Horizontal", 1),
    Sketcher.Constraint("Vertical", 2),
    Sketcher.Constraint("Horizontal", 3),
    Sketcher.Constraint("DistanceX", 1, 1, 1, 2, Q("5 mm")),
    Sketcher.Constraint("DistanceY", 0, 2, 0, 1, Q("8 mm")),
    Sketcher.Constraint("DistanceX", 0, 2, -1, 1, Q("79 mm")),
    Sketcher.Constraint("DistanceY", -1, 1, 0, 2, Q("153 mm")),
])
sketch17.setExpression("Constraints[8]", "Params.sketch17_width")
sketch17.setExpression("Constraints[9]", "Params.sketch17_height")
pad12 = body.newObject("PartDesign::Pad", "Pad011")
pad12.Profile = sketch17
pad12.setExpression("Length", "Params.pad12_length")

sketch18 = body.newObject("Sketcher::SketchObject", "Sketch017")
sketch18.AttachmentSupport = (doc.getObject("XZ_Plane"), [""])
sketch18.MapMode = "FlatFace"
sketch18.addGeometry(Part.Circle(App.Vector(-79, 159, 0), App.Vector(0, 0, 1), 2.1), False)
sketch18.addConstraint([
    Sketcher.Constraint("Diameter", 0, Q("4.2 mm")),
    Sketcher.Constraint("DistanceX", 0, 3, -1, 1, Q("79 mm")),
    Sketcher.Constraint("DistanceY", -1, 1, 0, 3, Q("159 mm")),
])
sketch18.setExpression("Constraints[0]", "Params.sketch18_diameter")
pocket6 = body.newObject("PartDesign::Pocket", "Pocket005")
pocket6.Profile = sketch18
pocket6.setExpression("Length", "Params.pocket6_length")

sketch19 = body.newObject("Sketcher::SketchObject", "Sketch018")
sketch19.AttachmentSupport = (doc.getObject("XY_Plane"), [""])
sketch19.MapMode = "FlatFace"
sketch19.AttachmentOffset = App.Placement(App.Vector(0, 0, 161), App.Rotation())
add_polygon(sketch19, [(-4.5, 4.5), (0, 0), (0, -6.5), (-4.5, -6.5)])
sketch19.addConstraint([
    Sketcher.Constraint("Vertical", 1),
    Sketcher.Constraint("Horizontal", 2),
    Sketcher.Constraint("Vertical", 3),
    Sketcher.Constraint("Coincident", 0, 2, -1, 1),
    Sketcher.Constraint("DistanceY", 3, 1, 3, 2, Q("11 mm")),
    Sketcher.Constraint("Angle", 0, Q("-45 deg")),
    Sketcher.Constraint("DistanceX", 2, 2, 2, 1, Q("4.5 mm")),
])
sketch19.setExpression("Constraints[8]", "Params.sketch19_height")
sketch19.setExpression("Constraints[10]", "Params.sketch19_width")
pad13 = body.newObject("PartDesign::Pad", "Pad012")
pad13.Profile = sketch19
pad13.setExpression("Length", "Params.pad13_length")
pad13.Reversed = True

sketch20 = body.newObject("Sketcher::SketchObject", "Sketch019")
sketch20.AttachmentSupport = (doc.getObject("XY_Plane"), [""])
sketch20.MapMode = "FlatFace"
sketch20.addGeometry(Part.Circle(App.Vector(0, -3, 0), App.Vector(0, 0, 1), 2.1), False)
sketch20.addConstraint([
    Sketcher.Constraint("PointOnObject", 0, 3, -2),
    Sketcher.Constraint("Diameter", 0, Q("4.2 mm")),
    Sketcher.Constraint("DistanceY", 0, 3, -1, 1, Q("3 mm")),
])
sketch20.setExpression("Constraints[1]", "Params.sketch20_diameter")
pocket7 = body.newObject("PartDesign::Pocket", "Pocket006")
pocket7.Profile = sketch20
pocket7.Type = "ThroughAll"
pocket7.Midplane = True

sketch21 = body.newObject("Sketcher::SketchObject", "Sketch020")
sketch21.AttachmentSupport = (doc.getObject("XY_Plane"), [""])
sketch21.MapMode = "FlatFace"
add_polygon(sketch21, [(-74, 24), (-74, 28), (-32.242641, 28), (-4.5, 0.257359), (-4.5, -3.742641), (-32.242641, 24)])
sketch21.addConstraint([
    Sketcher.Constraint("Vertical", 0),
    Sketcher.Constraint("Horizontal", 1),
    Sketcher.Constraint("Vertical", 3),
    Sketcher.Constraint("Horizontal", 5),
    Sketcher.Constraint("Parallel", 2, 4),
    Sketcher.Constraint("Vertical", 1, 2, 4, 2),
    Sketcher.Constraint("DistanceY", 0, 1, 0, 2, Q("4 mm")),
    Sketcher.Constraint("Angle", 2, Q("-45 deg")),
    Sketcher.Constraint("DistanceX", 0, 2, -1, 1, Q("74 mm")),
    Sketcher.Constraint("DistanceY", -1, 1, 0, 2, Q("28 mm")),
    Sketcher.Constraint("DistanceX", 2, 2, -1, 1, Q("4.5 mm")),
    Sketcher.Constraint("DistanceX", 1, 1, 1, 2, Q("41.757359 mm")),
])
sketch21.setExpression("Constraints[12]", "Params.sketch21_height")
pad14 = body.newObject("PartDesign::Pad", "Pad013")
pad14.Profile = sketch21
pad14.setExpression("Length", "Params.pad14_length")

sketch22 = body.newObject("Sketcher::SketchObject", "Sketch021")
sketch22.AttachmentSupport = (doc.getObject("XZ_Plane"), [""])
sketch22.MapMode = "FlatFace"
sketch22.AttachmentOffset = App.Placement(App.Vector(0, 0, -2), App.Rotation())
add_polygon(sketch22, [(-79, 151), (-42, 151), (-42, 161), (-4.5, 161), (-4.5, 159), (-40, 159), (-40, 149), (-79, 149)])
sketch22.addConstraint([
    Sketcher.Constraint("Horizontal", 0),
    Sketcher.Constraint("Vertical", 1),
    Sketcher.Constraint("Horizontal", 2),
    Sketcher.Constraint("Vertical", 3),
    Sketcher.Constraint("Horizontal", 4),
    Sketcher.Constraint("Vertical", 5),
    Sketcher.Constraint("Horizontal", 6),
    Sketcher.Constraint("Vertical", 7),
    Sketcher.Constraint("Equal", 1, 5),
    Sketcher.Constraint("DistanceX", 0, 1, 0, 2, Q("37 mm")),
    Sketcher.Constraint("DistanceX", 6, 2, 6, 1, Q("39 mm")),
    Sketcher.Constraint("DistanceY", 1, 1, 1, 2, Q("10 mm")),
    Sketcher.Constraint("DistanceY", 3, 2, 3, 1, Q("2 mm")),
    Sketcher.Constraint("DistanceX", 2, 1, 2, 2, Q("37.5 mm")),
    Sketcher.Constraint("DistanceX", 0, 2, -1, 1, Q("42 mm")),
    Sketcher.Constraint("DistanceY", -1, 1, 0, 2, Q("151 mm")),
])
sketch22.setExpression("Constraints[17]", "Params.sketch22_width")
sketch22.setExpression("Constraints[18]", "Params.sketch22_width2")
sketch22.setExpression("Constraints[19]", "Params.sketch22_height")
sketch22.setExpression("Constraints[20]", "Params.sketch22_height2")
sketch22.setExpression("Constraints[21]", "Params.sketch22_width3")
pad15 = body.newObject("PartDesign::Pad", "Pad014")
pad15.Profile = sketch22
pad15.setExpression("Length", "Params.pad15_length")
doc.recompute()

fillet = body.newObject("PartDesign::Fillet", "Fillet")
fillet.Base = (pad15, edges_at(pad15, [(-40, -1, 149)]))
fillet.setExpression("Radius", "Params.fillet_radius")
doc.recompute()

chamfer3 = body.newObject("PartDesign::Chamfer", "Chamfer002")
chamfer3.Base = (fillet, edges_at(fillet, [(-46.899, 2, 161)]))
chamfer3.ChamferType = "Two distances"
chamfer3.setExpression("Size", "Params.chamfer3_size")
chamfer3.setExpression("Size2", "Params.chamfer3_size2")

doc.recompute()
